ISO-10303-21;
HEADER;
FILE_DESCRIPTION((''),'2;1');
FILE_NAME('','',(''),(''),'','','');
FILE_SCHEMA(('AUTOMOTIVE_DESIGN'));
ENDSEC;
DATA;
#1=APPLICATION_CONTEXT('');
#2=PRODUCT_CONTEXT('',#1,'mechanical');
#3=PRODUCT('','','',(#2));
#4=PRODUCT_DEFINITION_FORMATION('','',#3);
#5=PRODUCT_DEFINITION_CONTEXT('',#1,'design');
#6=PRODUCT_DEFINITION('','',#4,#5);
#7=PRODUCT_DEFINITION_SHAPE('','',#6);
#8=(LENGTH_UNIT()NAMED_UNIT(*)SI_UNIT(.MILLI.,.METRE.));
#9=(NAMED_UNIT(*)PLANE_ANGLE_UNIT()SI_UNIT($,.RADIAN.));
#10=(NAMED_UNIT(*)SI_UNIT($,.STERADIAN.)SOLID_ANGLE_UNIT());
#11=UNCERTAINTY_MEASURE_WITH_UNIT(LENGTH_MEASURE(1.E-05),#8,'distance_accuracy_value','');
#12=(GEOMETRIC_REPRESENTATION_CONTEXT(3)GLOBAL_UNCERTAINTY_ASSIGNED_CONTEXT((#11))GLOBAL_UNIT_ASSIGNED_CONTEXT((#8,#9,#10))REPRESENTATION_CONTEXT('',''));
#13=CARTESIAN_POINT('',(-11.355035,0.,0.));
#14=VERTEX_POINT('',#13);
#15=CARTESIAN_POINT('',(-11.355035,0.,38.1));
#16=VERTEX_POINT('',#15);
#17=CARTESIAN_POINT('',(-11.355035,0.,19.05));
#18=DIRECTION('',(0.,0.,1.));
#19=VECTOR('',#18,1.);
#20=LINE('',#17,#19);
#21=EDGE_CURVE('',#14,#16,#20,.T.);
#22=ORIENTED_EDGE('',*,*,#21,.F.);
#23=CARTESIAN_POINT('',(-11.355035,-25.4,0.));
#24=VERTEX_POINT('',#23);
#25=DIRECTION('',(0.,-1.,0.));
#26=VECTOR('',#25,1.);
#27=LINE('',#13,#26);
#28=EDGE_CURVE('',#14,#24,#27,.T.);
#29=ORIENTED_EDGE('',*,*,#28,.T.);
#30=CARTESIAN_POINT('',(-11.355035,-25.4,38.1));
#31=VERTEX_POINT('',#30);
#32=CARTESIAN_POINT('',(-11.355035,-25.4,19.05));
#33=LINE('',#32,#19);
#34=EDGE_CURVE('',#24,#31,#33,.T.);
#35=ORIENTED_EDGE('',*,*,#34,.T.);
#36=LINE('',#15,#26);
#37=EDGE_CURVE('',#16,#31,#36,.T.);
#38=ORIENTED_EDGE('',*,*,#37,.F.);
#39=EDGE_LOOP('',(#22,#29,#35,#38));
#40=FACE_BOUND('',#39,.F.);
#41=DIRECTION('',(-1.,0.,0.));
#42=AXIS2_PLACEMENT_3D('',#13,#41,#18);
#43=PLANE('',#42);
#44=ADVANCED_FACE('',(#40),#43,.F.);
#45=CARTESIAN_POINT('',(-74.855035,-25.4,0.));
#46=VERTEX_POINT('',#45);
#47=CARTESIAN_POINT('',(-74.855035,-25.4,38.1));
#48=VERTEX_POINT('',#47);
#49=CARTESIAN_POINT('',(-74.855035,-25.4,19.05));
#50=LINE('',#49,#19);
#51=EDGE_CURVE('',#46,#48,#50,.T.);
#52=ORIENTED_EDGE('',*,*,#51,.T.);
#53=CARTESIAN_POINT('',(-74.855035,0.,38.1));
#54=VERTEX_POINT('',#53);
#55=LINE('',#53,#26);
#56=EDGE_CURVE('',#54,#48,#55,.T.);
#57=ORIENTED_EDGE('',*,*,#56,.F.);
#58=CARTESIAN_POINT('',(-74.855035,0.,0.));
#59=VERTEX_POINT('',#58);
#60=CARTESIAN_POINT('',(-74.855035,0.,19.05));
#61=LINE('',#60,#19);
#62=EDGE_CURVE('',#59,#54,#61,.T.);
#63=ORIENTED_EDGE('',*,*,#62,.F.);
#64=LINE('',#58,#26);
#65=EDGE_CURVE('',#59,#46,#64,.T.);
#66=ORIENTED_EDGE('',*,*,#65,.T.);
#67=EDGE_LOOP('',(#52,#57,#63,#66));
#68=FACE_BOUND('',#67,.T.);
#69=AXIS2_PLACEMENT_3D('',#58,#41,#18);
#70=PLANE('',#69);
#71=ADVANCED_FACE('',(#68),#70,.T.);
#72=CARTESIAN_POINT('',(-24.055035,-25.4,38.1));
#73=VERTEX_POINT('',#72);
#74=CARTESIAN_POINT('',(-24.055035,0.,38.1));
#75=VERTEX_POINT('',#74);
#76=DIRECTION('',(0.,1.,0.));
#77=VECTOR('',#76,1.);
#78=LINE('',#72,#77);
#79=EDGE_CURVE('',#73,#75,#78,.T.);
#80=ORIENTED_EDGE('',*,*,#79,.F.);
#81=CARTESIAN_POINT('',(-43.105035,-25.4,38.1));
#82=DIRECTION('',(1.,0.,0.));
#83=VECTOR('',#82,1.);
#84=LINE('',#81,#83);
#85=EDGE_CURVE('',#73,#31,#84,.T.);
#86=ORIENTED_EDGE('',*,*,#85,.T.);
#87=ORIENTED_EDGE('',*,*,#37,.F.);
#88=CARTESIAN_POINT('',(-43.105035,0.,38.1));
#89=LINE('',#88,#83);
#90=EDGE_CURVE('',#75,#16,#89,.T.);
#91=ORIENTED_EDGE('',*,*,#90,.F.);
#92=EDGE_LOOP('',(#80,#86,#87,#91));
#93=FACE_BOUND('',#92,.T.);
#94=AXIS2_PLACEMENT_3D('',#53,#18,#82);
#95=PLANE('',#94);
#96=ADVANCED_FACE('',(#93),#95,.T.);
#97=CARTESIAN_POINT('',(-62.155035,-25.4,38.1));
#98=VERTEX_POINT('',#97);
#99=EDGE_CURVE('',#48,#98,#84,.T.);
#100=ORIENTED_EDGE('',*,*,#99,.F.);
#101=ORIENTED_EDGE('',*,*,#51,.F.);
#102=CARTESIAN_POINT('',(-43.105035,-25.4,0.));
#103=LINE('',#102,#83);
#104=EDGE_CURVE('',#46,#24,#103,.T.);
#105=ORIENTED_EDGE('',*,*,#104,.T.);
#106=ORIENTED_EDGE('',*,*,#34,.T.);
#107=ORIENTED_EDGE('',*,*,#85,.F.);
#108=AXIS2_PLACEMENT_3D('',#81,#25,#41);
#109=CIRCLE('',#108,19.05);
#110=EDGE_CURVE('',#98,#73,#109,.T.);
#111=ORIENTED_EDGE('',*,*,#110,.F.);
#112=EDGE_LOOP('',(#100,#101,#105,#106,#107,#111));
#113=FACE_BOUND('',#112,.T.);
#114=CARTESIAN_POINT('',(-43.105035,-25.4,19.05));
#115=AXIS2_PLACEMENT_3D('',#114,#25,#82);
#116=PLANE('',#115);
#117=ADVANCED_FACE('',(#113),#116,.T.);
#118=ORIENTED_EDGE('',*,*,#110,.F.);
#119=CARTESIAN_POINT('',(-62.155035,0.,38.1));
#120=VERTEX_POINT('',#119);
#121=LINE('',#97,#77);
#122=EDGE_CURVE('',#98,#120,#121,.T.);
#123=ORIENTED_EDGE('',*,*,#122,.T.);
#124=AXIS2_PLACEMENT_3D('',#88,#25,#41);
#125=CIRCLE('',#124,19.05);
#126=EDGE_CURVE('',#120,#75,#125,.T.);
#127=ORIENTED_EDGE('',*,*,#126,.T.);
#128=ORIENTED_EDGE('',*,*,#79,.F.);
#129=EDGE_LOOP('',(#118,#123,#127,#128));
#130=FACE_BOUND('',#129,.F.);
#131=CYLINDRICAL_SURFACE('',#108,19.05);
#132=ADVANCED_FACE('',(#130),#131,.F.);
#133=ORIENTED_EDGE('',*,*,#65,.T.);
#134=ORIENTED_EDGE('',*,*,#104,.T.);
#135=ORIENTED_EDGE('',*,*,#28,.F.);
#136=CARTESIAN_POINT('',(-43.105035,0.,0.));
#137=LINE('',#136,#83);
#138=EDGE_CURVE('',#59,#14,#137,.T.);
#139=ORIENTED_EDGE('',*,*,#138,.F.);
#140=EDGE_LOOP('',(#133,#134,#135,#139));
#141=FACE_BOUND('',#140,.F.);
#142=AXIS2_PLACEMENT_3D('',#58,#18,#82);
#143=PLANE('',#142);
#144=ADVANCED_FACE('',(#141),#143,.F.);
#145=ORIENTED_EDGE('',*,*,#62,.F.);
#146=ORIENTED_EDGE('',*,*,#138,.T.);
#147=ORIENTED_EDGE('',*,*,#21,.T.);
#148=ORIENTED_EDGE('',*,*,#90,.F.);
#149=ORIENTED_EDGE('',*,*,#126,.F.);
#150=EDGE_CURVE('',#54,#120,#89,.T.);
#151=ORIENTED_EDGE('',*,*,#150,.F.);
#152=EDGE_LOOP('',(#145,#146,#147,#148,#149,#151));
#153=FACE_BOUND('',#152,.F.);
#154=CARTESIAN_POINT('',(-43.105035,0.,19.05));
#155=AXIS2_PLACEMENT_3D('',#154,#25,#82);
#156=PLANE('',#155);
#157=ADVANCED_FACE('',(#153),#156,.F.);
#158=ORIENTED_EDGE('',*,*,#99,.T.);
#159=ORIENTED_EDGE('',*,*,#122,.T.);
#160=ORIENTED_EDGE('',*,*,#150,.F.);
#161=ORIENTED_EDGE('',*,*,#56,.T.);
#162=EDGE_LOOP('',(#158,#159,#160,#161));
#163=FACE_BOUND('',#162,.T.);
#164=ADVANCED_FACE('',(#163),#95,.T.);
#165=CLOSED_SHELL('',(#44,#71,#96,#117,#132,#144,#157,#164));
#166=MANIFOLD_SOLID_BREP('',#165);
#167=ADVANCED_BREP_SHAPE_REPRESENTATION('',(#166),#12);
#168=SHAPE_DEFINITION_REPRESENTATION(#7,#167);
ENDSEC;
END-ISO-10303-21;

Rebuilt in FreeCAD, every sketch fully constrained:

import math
import FreeCAD as App
import Part
import Sketcher
from FreeCAD import Vector
Q = App.Units.Quantity


def add_polygon(sketch, points):
    """Adds a closed chain of lines whose ends are joined by coincident constraints."""
    first, n = sketch.GeometryCount, len(points)
    for a, b in zip(points, points[1:] + points[:1]):
        sketch.addGeometry(Part.LineSegment(App.Vector(*a, 0), App.Vector(*b, 0)), False)
    for i in range(n):
        sketch.addConstraint(Sketcher.Constraint("Coincident", first + i, 2, first + (i + 1) % n, 1))

doc = App.newDocument("Part")
body = doc.addObject("PartDesign::Body", "Body")

sketch1 = body.newObject("Sketcher::SketchObject", "Sketch")
sketch1.AttachmentSupport = (doc.getObject("XZ_Plane"), [""])
sketch1.MapMode = "FlatFace"
add_polygon(sketch1, [(-74.855035, 38.1), (-74.855035, 0), (-11.355035, 0), (-11.355035, 38.1)])
sketch1.addConstraint(Sketcher.Constraint("Vertical", 0))
sketch1.addConstraint(Sketcher.Constraint("Horizontal", 1))
sketch1.addConstraint(Sketcher.Constraint("Vertical", 2))
sketch1.addConstraint(Sketcher.Constraint("Horizontal", 3))
sketch1.addConstraint(Sketcher.Constraint("PointOnObject", 0, 2, -1))
sketch1.addConstraint(Sketcher.Constraint("DistanceX", 1, 1, 1, 2, Q("2.5 in")))
sketch1.addConstraint(Sketcher.Constraint("DistanceY", 0, 2, 0, 1, Q("1.5 in")))
sketch1.addConstraint(Sketcher.Constraint("DistanceX", 0, 2, -1, 1, 74.855035))
pad1 = body.newObject("PartDesign::Pad", "Pad")
pad1.Profile = sketch1
pad1.Length = Q("1 in")

sketch2 = body.newObject("Sketcher::SketchObject", "Sketch001")
sketch2.AttachmentSupport = (doc.getObject("XZ_Plane"), [""])
sketch2.MapMode = "FlatFace"
sketch2.AttachmentOffset = App.Placement(Vector(0, 0, 1 * 25.4), App.Rotation())
sketch2.addGeometry(Part.LineSegment(Vector(-24.055035, 38.1, 0), Vector(-62.155035, 38.1, 0)), False)
sketch2.addGeometry(Part.ArcOfCircle(Part.Circle(Vector(-43.105035, 38.1, 0), Vector(0, 0, 1), 19.05), math.radians(180), math.radians(360)), False)
sketch2.addConstraint(Sketcher.Constraint("Coincident", 0, 1, 1, 2))
sketch2.addConstraint(Sketcher.Constraint("Coincident", 1, 1, 0, 2))
sketch2.addConstraint(Sketcher.Constraint("Horizontal", 0))
sketch2.addConstraint(Sketcher.Constraint("Horizontal", 1, 3, 0, 1))
sketch2.addConstraint(Sketcher.Constraint("Radius", 1, Q("0.75 in")))
sketch2.addConstraint(Sketcher.Constraint("DistanceY", -1, 1, 1, 3, Q("1.5 in")))
sketch2.addConstraint(Sketcher.Constraint("DistanceX", 1, 3, -1, 1, 43.105035))
pocket1 = body.newObject("PartDesign::Pocket", "Pocket")
pocket1.Profile = sketch2
pocket1.Type = "ThroughAll"

doc.recompute()
